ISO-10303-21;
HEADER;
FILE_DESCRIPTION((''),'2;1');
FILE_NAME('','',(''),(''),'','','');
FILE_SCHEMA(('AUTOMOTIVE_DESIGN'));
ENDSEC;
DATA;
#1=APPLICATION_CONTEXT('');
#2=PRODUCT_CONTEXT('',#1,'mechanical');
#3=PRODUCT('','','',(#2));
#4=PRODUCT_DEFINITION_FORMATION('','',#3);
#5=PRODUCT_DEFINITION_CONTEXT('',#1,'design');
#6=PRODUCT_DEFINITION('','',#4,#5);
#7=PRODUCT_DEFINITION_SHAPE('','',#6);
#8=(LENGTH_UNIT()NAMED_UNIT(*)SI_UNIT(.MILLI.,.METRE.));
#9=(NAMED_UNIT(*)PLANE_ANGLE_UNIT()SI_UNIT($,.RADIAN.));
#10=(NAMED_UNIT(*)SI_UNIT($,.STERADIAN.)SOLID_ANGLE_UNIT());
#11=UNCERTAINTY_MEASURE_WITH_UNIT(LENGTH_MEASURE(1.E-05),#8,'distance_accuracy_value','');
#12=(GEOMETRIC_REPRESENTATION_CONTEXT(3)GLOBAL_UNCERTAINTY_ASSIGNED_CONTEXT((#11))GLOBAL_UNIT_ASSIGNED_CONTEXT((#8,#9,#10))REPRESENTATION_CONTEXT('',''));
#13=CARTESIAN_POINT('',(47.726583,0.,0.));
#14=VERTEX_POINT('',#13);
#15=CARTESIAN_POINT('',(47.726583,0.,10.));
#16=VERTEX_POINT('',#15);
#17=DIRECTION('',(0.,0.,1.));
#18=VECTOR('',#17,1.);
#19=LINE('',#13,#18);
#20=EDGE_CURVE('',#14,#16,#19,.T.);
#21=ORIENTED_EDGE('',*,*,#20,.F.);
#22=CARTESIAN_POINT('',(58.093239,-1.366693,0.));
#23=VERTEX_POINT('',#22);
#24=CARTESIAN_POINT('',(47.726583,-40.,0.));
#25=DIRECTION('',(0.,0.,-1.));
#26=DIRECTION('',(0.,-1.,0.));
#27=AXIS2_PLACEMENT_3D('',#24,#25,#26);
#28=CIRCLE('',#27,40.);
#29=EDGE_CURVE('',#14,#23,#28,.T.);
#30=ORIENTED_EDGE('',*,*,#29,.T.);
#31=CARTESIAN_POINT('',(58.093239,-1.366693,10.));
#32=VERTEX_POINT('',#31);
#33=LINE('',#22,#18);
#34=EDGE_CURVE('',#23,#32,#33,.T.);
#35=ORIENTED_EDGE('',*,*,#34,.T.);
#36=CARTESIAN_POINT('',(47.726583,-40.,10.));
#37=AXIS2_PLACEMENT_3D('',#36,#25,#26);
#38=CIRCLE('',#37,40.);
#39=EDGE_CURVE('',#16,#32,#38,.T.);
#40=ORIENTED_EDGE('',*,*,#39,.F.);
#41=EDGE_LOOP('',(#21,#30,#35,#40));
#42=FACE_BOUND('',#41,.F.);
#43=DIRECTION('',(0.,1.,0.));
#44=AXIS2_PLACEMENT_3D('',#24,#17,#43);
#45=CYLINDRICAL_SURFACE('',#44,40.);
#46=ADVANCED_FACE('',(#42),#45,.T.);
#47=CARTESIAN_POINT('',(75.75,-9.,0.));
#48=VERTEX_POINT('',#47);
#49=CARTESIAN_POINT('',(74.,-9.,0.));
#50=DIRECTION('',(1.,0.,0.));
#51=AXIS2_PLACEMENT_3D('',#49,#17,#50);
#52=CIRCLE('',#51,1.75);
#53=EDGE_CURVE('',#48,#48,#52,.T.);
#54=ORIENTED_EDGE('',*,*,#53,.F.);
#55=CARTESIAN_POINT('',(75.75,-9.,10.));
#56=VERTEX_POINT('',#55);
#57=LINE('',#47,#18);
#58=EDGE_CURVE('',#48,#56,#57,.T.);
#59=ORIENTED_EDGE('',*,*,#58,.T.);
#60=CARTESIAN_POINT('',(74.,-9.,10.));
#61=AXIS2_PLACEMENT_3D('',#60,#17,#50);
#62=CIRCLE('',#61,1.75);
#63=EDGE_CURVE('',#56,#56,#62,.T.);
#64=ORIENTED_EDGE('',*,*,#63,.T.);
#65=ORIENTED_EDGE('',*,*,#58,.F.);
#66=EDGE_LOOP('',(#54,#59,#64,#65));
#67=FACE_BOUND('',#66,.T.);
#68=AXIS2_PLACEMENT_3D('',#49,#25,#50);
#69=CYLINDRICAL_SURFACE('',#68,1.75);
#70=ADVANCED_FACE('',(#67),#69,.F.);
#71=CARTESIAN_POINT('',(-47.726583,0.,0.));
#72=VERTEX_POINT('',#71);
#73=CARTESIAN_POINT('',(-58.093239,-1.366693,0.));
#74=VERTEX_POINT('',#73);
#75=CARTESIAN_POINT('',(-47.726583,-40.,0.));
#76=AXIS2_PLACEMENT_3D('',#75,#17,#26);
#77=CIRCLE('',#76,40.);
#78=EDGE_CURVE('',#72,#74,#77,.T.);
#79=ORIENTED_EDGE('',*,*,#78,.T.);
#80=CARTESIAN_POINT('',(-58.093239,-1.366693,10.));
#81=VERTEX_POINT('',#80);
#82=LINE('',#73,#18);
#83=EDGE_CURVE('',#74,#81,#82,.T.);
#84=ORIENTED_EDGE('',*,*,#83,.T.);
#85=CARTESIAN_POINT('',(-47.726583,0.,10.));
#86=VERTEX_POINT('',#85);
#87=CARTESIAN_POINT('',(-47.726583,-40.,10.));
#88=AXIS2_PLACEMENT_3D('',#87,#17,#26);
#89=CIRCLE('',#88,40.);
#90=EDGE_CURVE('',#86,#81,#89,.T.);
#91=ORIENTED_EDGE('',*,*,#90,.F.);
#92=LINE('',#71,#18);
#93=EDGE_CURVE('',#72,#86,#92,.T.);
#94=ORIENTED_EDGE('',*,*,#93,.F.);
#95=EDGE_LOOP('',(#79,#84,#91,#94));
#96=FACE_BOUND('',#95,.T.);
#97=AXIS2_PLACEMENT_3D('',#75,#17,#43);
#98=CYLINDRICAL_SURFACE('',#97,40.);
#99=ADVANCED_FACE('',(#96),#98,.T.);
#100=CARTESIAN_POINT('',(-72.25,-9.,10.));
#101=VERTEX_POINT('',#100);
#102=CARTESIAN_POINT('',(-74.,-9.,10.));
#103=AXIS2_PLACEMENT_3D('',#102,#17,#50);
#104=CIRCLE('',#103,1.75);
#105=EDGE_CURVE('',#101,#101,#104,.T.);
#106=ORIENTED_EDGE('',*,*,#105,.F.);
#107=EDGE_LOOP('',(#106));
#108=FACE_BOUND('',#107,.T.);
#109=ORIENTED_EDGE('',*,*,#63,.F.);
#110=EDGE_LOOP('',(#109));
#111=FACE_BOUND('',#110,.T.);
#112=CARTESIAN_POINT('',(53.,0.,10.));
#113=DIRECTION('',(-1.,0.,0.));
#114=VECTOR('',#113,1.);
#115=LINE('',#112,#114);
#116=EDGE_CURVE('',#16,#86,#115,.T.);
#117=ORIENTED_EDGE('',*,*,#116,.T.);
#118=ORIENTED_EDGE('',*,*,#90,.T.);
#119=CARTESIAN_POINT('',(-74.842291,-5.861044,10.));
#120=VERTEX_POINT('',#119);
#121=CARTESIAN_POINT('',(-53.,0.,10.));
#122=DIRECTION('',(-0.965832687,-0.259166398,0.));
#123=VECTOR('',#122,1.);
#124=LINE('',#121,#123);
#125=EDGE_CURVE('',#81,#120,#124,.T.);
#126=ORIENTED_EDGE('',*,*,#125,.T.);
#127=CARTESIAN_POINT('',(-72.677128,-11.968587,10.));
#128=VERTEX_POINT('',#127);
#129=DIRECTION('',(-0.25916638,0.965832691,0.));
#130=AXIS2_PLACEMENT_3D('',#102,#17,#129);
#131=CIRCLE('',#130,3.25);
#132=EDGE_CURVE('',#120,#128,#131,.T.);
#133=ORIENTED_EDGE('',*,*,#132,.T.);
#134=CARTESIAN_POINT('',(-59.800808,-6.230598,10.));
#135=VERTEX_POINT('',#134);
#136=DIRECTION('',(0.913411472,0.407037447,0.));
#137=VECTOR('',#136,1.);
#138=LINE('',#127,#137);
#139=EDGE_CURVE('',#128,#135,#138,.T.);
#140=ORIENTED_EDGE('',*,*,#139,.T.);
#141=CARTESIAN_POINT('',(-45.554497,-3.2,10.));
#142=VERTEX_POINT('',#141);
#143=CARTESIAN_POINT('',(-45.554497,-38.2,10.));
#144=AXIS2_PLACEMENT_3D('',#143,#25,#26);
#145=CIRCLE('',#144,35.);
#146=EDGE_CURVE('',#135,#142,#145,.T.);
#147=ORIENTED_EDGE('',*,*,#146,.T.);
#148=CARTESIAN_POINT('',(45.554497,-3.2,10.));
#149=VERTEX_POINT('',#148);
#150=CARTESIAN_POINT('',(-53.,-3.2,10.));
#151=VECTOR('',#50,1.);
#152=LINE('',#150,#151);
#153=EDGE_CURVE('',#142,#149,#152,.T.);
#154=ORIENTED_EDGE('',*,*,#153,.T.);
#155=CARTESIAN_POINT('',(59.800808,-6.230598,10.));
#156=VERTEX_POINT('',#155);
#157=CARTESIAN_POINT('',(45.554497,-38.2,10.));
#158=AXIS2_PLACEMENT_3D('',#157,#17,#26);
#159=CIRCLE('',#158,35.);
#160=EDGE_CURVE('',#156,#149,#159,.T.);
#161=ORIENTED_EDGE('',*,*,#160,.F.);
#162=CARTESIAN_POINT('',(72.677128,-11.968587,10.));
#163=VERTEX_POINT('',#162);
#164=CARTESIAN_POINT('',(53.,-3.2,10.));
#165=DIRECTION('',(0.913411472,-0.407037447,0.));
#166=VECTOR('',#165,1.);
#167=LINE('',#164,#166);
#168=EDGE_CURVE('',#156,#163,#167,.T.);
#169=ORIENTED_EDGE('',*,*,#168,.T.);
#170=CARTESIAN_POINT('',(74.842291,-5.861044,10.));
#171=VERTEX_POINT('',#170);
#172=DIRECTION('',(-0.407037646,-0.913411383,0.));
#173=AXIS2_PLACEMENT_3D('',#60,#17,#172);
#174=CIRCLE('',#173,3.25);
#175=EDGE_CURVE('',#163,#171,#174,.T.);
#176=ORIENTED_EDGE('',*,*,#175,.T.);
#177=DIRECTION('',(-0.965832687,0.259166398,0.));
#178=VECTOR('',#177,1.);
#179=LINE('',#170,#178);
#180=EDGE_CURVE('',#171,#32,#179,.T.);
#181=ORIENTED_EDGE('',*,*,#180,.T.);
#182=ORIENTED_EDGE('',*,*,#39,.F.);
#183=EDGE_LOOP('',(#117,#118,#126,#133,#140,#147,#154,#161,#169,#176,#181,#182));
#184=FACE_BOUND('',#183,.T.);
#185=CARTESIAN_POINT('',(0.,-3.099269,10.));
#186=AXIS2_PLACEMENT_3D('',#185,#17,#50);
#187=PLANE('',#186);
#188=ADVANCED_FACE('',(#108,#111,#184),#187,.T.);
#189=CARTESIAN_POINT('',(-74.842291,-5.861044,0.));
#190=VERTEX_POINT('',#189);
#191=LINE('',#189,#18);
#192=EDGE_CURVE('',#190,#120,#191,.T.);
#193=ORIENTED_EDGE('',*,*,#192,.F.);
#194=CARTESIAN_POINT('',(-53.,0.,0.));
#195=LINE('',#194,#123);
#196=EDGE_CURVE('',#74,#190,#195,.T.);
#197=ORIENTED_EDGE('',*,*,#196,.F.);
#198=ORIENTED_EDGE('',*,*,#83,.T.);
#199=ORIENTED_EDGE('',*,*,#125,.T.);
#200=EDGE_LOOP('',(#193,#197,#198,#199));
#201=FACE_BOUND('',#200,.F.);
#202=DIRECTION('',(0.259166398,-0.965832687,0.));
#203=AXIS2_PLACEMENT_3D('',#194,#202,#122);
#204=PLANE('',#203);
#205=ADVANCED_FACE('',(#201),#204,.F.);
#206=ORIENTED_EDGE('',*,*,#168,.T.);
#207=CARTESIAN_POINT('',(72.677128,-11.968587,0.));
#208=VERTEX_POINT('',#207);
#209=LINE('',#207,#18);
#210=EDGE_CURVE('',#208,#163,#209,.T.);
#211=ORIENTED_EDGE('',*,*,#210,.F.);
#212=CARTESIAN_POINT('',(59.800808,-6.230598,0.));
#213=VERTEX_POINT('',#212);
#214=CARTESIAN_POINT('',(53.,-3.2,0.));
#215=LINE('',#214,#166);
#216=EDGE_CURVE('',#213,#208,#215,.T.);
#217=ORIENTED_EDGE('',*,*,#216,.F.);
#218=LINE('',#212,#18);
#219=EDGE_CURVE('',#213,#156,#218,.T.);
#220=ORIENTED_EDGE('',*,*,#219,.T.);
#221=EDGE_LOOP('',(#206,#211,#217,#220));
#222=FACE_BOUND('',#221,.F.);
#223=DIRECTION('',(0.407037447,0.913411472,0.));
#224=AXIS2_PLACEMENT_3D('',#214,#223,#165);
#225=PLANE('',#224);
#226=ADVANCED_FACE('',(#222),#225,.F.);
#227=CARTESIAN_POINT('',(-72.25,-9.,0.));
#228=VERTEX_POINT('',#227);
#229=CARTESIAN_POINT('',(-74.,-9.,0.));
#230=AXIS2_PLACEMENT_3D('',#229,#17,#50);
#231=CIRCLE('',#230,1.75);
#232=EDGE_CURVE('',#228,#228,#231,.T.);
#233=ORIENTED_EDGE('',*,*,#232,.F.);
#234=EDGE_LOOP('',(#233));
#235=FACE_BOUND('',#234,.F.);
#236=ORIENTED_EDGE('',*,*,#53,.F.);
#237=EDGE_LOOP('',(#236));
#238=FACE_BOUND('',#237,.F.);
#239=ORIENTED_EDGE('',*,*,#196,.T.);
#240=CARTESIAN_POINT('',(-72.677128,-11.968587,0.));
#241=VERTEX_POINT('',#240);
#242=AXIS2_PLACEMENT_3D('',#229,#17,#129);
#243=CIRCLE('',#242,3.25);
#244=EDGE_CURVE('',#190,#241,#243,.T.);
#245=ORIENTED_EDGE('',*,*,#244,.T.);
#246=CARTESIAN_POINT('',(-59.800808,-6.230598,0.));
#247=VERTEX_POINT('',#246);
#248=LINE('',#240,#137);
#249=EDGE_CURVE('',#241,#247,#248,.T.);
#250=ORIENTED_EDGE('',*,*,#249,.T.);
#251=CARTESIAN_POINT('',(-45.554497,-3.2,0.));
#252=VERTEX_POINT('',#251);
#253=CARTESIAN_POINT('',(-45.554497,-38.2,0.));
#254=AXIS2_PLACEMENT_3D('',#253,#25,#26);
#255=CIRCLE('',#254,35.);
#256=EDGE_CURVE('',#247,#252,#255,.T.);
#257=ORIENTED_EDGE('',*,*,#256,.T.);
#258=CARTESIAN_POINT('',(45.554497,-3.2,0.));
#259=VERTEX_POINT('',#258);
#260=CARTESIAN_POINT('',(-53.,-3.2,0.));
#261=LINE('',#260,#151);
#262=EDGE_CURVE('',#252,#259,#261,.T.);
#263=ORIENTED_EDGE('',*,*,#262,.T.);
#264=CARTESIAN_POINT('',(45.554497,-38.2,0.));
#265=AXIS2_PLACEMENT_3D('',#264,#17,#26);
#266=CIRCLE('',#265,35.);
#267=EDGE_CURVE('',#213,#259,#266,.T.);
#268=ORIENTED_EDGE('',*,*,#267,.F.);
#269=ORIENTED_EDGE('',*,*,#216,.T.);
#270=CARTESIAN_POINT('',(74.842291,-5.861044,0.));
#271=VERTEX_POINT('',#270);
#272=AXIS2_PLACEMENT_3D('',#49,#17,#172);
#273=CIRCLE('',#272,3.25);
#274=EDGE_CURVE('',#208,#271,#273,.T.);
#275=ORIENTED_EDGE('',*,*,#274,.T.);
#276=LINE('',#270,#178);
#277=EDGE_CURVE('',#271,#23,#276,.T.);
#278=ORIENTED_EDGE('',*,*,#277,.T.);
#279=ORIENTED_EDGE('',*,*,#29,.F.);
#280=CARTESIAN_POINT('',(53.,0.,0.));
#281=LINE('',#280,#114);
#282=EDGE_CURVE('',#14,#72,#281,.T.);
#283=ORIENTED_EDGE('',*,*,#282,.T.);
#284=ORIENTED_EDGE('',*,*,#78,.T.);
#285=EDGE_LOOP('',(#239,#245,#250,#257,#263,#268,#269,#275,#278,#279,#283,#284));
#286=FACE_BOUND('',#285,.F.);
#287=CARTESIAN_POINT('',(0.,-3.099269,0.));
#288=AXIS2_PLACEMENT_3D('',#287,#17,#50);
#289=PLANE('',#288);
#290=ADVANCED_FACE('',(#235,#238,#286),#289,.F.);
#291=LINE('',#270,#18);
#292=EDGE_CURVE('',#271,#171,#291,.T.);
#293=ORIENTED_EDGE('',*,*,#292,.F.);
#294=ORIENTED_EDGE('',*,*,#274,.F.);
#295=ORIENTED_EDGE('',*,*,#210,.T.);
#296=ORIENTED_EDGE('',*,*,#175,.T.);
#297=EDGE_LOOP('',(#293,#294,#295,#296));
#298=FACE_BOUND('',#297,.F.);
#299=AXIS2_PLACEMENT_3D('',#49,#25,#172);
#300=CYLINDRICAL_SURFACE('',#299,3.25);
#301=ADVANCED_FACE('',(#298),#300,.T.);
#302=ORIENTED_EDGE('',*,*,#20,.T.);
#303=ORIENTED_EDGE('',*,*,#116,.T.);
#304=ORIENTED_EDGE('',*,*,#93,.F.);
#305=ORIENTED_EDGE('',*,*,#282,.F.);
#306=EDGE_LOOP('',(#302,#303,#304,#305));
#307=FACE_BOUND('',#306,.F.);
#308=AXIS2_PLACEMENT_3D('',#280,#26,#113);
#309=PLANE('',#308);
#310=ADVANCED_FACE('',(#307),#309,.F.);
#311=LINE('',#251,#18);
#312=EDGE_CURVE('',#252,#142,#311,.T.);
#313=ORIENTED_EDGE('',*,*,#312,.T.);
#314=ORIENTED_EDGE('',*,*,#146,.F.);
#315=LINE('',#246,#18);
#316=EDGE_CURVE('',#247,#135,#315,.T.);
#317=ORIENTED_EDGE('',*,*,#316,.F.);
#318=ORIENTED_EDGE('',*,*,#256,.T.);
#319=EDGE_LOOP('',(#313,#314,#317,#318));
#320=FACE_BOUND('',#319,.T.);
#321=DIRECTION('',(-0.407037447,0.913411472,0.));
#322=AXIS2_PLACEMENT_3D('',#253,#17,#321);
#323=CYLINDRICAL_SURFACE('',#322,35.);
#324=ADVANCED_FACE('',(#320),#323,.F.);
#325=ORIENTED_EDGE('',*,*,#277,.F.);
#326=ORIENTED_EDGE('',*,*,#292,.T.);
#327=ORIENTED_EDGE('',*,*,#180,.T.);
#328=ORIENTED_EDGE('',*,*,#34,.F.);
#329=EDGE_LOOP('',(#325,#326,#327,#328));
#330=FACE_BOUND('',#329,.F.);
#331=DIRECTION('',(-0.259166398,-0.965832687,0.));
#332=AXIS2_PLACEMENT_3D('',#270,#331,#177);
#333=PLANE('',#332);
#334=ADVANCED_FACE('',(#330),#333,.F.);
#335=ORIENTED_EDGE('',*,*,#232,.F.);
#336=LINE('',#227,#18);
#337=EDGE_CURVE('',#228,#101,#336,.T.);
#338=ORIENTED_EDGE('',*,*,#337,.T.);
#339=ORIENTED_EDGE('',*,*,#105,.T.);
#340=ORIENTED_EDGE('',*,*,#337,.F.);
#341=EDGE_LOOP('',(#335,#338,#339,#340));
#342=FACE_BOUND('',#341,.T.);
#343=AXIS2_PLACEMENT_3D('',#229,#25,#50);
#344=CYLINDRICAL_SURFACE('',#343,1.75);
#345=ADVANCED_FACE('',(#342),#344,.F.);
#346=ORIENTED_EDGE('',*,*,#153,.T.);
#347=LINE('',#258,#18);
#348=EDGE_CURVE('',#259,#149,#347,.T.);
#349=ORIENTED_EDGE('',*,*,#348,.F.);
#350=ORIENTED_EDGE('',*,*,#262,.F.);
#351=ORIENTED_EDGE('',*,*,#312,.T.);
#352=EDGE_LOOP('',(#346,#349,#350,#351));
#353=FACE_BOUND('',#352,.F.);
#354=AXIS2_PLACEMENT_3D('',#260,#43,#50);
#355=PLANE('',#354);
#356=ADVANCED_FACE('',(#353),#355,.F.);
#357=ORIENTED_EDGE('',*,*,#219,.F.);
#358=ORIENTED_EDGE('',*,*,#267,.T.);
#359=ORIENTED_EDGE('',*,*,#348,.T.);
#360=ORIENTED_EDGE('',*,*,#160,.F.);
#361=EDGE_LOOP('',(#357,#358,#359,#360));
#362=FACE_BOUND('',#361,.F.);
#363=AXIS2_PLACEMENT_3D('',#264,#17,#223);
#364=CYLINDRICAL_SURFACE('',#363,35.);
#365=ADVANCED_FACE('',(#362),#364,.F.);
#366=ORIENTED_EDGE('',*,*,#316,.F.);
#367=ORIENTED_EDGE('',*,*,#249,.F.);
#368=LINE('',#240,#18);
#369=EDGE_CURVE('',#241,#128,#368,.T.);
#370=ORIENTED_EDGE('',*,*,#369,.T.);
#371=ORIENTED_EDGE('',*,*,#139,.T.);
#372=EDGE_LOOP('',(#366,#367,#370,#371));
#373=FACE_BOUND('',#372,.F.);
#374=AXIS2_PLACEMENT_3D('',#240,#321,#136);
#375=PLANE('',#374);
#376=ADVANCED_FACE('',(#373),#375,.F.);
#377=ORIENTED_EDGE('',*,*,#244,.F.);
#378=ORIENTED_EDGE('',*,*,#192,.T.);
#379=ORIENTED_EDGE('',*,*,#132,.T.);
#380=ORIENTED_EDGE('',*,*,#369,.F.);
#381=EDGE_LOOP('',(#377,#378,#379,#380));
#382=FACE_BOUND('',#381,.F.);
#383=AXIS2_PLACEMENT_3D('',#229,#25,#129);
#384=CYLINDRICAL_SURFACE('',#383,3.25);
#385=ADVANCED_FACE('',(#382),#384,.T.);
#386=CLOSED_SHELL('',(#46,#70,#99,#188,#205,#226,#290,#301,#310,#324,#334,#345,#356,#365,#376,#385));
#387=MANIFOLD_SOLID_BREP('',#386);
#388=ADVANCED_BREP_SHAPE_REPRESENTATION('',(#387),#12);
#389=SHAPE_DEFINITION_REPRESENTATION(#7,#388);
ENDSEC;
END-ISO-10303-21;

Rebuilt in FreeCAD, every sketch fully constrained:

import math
import FreeCAD as App
import Part
import Sketcher

V = App.Vector


def edges_at(feature, points):
    """Names of the edges that pass closest to the given points."""
    edges = feature.Shape.Edges
    near = lambda p: min(range(len(edges)), key=lambda i: edges[i].distToShape(Part.Vertex(*p))[0])
    return sorted({f"Edge{near(p) + 1}" for p in points})

doc = App.newDocument("Part")
params = doc.addObject("Spreadsheet::Sheet", "Params")
for row, (alias, value) in enumerate([
    ("sketch1_diameter", "3.5 mm"),
    ("sketch1_width", "106 mm"),
    ("sketch1_radius", "3.25 mm"),
    ("pad1_length", "10 mm"),
    ("fillet_radius", "40 mm"),
    ("fillet2_radius", "35 mm"),
], start=1):
    params.set(f"A{row}", alias)
    params.set(f"B{row}", "=" + value)
    params.setAlias(f"B{row}", alias)

body = doc.addObject("PartDesign::Body", "Body")

# Sketch on XY plane
sketch1 = doc.addObject("Sketcher::SketchObject", "Sketch")
body.addObject(sketch1)
sketch1.AttachmentSupport = (doc.XY_Plane, [""])
sketch1.MapMode = "FlatFace"
sketch1.addGeometry(Part.LineSegment(V(53, 0, 0), V(-53, 0, 0)), False)
sketch1.addGeometry(Part.LineSegment(V(-53, 0, 0), V(-74.8, -5.9, 0)), False)
sketch1.addGeometry(Part.ArcOfCircle(Part.Circle(V(-74, -9, 0), V(0, 0, 1), 3.2), math.radians(105), math.radians(294)), False)
sketch1.addGeometry(Part.LineSegment(V(-72.7, -12, 0), V(-53, -3.2, 0)), False)
sketch1.addGeometry(Part.LineSegment(V(-53, -3.2, 0), V(53, -3.2, 0)), False)
sketch1.addGeometry(Part.LineSegment(V(53, -3.2, 0), V(72.7, -12, 0)), False)
sketch1.addGeometry(Part.ArcOfCircle(Part.Circle(V(74, -9, 0), V(0, 0, 1), 3.2), math.radians(-114), math.radians(75)), False)
sketch1.addGeometry(Part.LineSegment(V(74.8, -5.9, 0), V(53, 0, 0)), False)
sketch1.addGeometry(Part.Circle(V(-74, -9, 0), V(0, 0, 1), 1.8), False)
sketch1.addGeometry(Part.Circle(V(74, -9, 0), V(0, 0, 1), 1.8), False)
sketch1.addConstraint(Sketcher.Constraint("Coincident", 0, 2, 1, 1))
sketch1.addConstraint(Sketcher.Constraint("Tangent", 1, 2, 2, 1))
sketch1.addConstraint(Sketcher.Constraint("Tangent", 2, 2, 3, 1))
sketch1.addConstraint(Sketcher.Constraint("Coincident", 3, 2, 4, 1))
sketch1.addConstraint(Sketcher.Constraint("Coincident", 4, 2, 5, 1))
sketch1.addConstraint(Sketcher.Constraint("Tangent", 5, 2, 6, 1))
sketch1.addConstraint(Sketcher.Constraint("Tangent", 6, 2, 7, 1))
sketch1.addConstraint(Sketcher.Constraint("Coincident", 7, 2, 0, 1))
sketch1.addConstraint(Sketcher.Constraint("Horizontal", 0))
sketch1.addConstraint(Sketcher.Constraint("Horizontal", 4))
sketch1.addConstraint(Sketcher.Constraint("Coincident", 8, 3, 2, 3))
sketch1.addConstraint(Sketcher.Constraint("Coincident", 9, 3, 6, 3))
sketch1.addConstraint(Sketcher.Constraint("Equal", 2, 6))
sketch1.addConstraint(Sketcher.Constraint("Equal", 8, 9))
sketch1.addConstraint(Sketcher.Constraint("Symmetric", 0, 2, 7, 2, -1, 1))
sketch1.addConstraint(Sketcher.Constraint("Symmetric", 2, 3, 6, 3, -2))
sketch1.addConstraint(Sketcher.Constraint("Horizontal", 2, 2, 5, 2))
sketch1.addConstraint(Sketcher.Constraint("Vertical", 0, 2, 3, 2))
sketch1.addConstraint(Sketcher.Constraint("Diameter", 8, 3.5))
sketch1.addConstraint(Sketcher.Constraint("DistanceX", 0, 2, 0, 1, 106.0))
sketch1.addConstraint(Sketcher.Constraint("Radius", 2, 3.25))
sketch1.addConstraint(Sketcher.Constraint("DistanceX", 2, 3, -1, 1, 74.0))
sketch1.addConstraint(Sketcher.Constraint("DistanceY", 2, 3, -1, 1, 9.0))
sketch1.addConstraint(Sketcher.Constraint("DistanceY", 3, 2, -1, 1, 3.2))
sketch1.setExpression("Constraints[18]", "Params.sketch1_diameter")
sketch1.setExpression("Constraints[19]", "Params.sketch1_width")
sketch1.setExpression("Constraints[20]", "Params.sketch1_radius")
pad1 = doc.addObject("PartDesign::Pad", "Pad")
body.addObject(pad1)
pad1.Profile = sketch1
pad1.setExpression("Length", "Params.pad1_length")
doc.recompute()

fillet = doc.addObject("PartDesign::Fillet", "Fillet")
body.addObject(fillet)
fillet.Base = (pad1, edges_at(pad1, [(53, 0, 5), (-53, 0, 5)]))
fillet.setExpression("Radius", "Params.fillet_radius")
doc.recompute()

fillet2 = doc.addObject("PartDesign::Fillet", "Fillet001")
body.addObject(fillet2)
fillet2.Base = (fillet, edges_at(fillet, [(-53, -3.2, 5), (53, -3.2, 5)]))
fillet2.setExpression("Radius", "Params.fillet2_radius")

doc.recompute()
